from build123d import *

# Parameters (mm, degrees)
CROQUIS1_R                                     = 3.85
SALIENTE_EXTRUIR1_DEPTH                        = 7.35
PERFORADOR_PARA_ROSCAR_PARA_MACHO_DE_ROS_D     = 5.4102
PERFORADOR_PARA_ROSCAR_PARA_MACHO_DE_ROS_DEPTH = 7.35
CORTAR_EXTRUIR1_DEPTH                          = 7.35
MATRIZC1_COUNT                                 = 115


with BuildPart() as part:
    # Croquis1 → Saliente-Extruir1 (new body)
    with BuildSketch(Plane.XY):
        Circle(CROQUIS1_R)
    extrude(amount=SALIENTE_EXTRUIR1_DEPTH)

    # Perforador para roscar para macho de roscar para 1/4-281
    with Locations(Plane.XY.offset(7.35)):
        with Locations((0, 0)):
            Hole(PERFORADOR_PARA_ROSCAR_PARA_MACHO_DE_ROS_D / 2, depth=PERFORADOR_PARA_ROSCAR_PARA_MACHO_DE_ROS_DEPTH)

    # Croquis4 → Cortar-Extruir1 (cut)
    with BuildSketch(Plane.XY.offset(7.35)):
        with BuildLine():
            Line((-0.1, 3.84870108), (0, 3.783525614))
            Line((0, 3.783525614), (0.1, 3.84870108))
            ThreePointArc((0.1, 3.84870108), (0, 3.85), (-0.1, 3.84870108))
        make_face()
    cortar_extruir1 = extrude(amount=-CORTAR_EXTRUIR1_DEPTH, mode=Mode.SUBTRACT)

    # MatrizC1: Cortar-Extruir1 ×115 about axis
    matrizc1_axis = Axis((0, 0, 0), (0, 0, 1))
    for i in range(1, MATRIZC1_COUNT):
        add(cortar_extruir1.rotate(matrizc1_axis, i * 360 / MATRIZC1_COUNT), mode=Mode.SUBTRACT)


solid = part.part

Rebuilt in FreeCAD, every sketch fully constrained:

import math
import FreeCAD as App
import Part
import Sketcher
from FreeCAD import Vector

doc = App.newDocument("Part")
params = doc.addObject("Spreadsheet::Sheet", "Params")
for row, (alias, value) in enumerate([
    ("sketch1_diameter", "7.7 mm"),
    ("pad1_length", "7.35 mm"),
    ("hole_diameter", "5.4102 mm"),
    ("hole_depth", "7.35 mm"),
    ("sketch3_radius", "3.850001 mm"),
    ("pocket1_length", "7.35 mm"),
], start=1):
    params.set(f"A{row}", alias)
    params.set(f"B{row}", "=" + value)
    params.setAlias(f"B{row}", alias)

body = doc.addObject("PartDesign::Body", "Body")

sketch1 = body.newObject("Sketcher::SketchObject", "Sketch")
sketch1.AttachmentSupport = (doc.getObject("XY_Plane"), [""])
sketch1.MapMode = "FlatFace"
sketch1.addGeometry(Part.Circle(Vector(0, 0, 0), Vector(0, 0, 1), 3.9), False)
sketch1.addConstraint(Sketcher.Constraint("Coincident", 0, 3, -1, 1))
sketch1.addConstraint(Sketcher.Constraint("Diameter", 0, 7.7))
sketch1.setExpression("Constraints[1]", "Params.sketch1_diameter")
pad1 = body.newObject("PartDesign::Pad", "Pad")
pad1.Profile = sketch1
pad1.setExpression("Length", "Params.pad1_length")

sketch2 = body.newObject("Sketcher::SketchObject", "Sketch001")
sketch2.AttachmentSupport = (doc.getObject("XY_Plane"), [""])
sketch2.MapMode = "FlatFace"
sketch2.AttachmentOffset = App.Placement(Vector(0, 0, 7.35), App.Rotation())
sketch2.addGeometry(Part.Circle(Vector(0, 0, 0), Vector(0, 0, 1), 2.7), False)
sketch2.addConstraint(Sketcher.Constraint("Coincident", 0, 3, -1, 1))
sketch2.addConstraint(Sketcher.Constraint("Diameter", 0, 5.4102))
doc.recompute()
hole = body.newObject("PartDesign::Hole", "Hole")
hole.Profile = sketch2
hole.ThreadType = "None"
hole.setExpression("Diameter", "Params.hole_diameter")
hole.DepthType = "Dimension"
hole.setExpression("Depth", "Params.hole_depth")
hole.DrillPoint = "Flat"

sketch3 = body.newObject("Sketcher::SketchObject", "Sketch002")
sketch3.AttachmentSupport = (doc.getObject("XY_Plane"), [""])
sketch3.MapMode = "FlatFace"
sketch3.AttachmentOffset = App.Placement(Vector(0, 0, 7.35), App.Rotation())
sketch3.addGeometry(Part.LineSegment(Vector(-0.1, 3.85, 0), Vector(0, 3.78, 0)), False)
sketch3.addGeometry(Part.LineSegment(Vector(0, 3.78, 0), Vector(0.1, 3.85, 0)), False)
sketch3.addGeometry(Part.ArcOfCircle(Part.Circle(Vector(0, 0, 0), Vector(0, 0, 1), 3.85), math.radians(88.51), math.radians(91.49)), False)
sketch3.addConstraint(Sketcher.Constraint("Coincident", 0, 2, 1, 1))
sketch3.addConstraint(Sketcher.Constraint("Coincident", 1, 2, 2, 1))
sketch3.addConstraint(Sketcher.Constraint("Coincident", 2, 2, 0, 1))
sketch3.addConstraint(Sketcher.Constraint("Coincident", 2, 3, -1, 1))
sketch3.addConstraint(Sketcher.Constraint("PointOnObject", 0, 2, -2))
sketch3.addConstraint(Sketcher.Constraint("Horizontal", 1, 2, 2, 2))
sketch3.addConstraint(Sketcher.Constraint("Radius", 2, 3.850001))
sketch3.addConstraint(Sketcher.Constraint("DistanceX", -1, 1, 1, 2, 0.1))
sketch3.addConstraint(Sketcher.Constraint("Distance", 0, 0.119364))
sketch3.setExpression("Constraints[6]", "Params.sketch3_radius")
pocket1 = body.newObject("PartDesign::Pocket", "Pocket")
pocket1.Profile = sketch3
pocket1.setExpression("Length", "Params.pocket1_length")
doc.recompute()

polarpattern = body.newObject("PartDesign::PolarPattern", "PolarPattern")
polarpattern.Originals = [pocket1]
polarpattern.Axis = (doc.getObject("Z_Axis"), [""])
polarpattern.Angle = 360
polarpattern.Occurrences = 115
body.Tip = polarpattern

doc.recompute()
